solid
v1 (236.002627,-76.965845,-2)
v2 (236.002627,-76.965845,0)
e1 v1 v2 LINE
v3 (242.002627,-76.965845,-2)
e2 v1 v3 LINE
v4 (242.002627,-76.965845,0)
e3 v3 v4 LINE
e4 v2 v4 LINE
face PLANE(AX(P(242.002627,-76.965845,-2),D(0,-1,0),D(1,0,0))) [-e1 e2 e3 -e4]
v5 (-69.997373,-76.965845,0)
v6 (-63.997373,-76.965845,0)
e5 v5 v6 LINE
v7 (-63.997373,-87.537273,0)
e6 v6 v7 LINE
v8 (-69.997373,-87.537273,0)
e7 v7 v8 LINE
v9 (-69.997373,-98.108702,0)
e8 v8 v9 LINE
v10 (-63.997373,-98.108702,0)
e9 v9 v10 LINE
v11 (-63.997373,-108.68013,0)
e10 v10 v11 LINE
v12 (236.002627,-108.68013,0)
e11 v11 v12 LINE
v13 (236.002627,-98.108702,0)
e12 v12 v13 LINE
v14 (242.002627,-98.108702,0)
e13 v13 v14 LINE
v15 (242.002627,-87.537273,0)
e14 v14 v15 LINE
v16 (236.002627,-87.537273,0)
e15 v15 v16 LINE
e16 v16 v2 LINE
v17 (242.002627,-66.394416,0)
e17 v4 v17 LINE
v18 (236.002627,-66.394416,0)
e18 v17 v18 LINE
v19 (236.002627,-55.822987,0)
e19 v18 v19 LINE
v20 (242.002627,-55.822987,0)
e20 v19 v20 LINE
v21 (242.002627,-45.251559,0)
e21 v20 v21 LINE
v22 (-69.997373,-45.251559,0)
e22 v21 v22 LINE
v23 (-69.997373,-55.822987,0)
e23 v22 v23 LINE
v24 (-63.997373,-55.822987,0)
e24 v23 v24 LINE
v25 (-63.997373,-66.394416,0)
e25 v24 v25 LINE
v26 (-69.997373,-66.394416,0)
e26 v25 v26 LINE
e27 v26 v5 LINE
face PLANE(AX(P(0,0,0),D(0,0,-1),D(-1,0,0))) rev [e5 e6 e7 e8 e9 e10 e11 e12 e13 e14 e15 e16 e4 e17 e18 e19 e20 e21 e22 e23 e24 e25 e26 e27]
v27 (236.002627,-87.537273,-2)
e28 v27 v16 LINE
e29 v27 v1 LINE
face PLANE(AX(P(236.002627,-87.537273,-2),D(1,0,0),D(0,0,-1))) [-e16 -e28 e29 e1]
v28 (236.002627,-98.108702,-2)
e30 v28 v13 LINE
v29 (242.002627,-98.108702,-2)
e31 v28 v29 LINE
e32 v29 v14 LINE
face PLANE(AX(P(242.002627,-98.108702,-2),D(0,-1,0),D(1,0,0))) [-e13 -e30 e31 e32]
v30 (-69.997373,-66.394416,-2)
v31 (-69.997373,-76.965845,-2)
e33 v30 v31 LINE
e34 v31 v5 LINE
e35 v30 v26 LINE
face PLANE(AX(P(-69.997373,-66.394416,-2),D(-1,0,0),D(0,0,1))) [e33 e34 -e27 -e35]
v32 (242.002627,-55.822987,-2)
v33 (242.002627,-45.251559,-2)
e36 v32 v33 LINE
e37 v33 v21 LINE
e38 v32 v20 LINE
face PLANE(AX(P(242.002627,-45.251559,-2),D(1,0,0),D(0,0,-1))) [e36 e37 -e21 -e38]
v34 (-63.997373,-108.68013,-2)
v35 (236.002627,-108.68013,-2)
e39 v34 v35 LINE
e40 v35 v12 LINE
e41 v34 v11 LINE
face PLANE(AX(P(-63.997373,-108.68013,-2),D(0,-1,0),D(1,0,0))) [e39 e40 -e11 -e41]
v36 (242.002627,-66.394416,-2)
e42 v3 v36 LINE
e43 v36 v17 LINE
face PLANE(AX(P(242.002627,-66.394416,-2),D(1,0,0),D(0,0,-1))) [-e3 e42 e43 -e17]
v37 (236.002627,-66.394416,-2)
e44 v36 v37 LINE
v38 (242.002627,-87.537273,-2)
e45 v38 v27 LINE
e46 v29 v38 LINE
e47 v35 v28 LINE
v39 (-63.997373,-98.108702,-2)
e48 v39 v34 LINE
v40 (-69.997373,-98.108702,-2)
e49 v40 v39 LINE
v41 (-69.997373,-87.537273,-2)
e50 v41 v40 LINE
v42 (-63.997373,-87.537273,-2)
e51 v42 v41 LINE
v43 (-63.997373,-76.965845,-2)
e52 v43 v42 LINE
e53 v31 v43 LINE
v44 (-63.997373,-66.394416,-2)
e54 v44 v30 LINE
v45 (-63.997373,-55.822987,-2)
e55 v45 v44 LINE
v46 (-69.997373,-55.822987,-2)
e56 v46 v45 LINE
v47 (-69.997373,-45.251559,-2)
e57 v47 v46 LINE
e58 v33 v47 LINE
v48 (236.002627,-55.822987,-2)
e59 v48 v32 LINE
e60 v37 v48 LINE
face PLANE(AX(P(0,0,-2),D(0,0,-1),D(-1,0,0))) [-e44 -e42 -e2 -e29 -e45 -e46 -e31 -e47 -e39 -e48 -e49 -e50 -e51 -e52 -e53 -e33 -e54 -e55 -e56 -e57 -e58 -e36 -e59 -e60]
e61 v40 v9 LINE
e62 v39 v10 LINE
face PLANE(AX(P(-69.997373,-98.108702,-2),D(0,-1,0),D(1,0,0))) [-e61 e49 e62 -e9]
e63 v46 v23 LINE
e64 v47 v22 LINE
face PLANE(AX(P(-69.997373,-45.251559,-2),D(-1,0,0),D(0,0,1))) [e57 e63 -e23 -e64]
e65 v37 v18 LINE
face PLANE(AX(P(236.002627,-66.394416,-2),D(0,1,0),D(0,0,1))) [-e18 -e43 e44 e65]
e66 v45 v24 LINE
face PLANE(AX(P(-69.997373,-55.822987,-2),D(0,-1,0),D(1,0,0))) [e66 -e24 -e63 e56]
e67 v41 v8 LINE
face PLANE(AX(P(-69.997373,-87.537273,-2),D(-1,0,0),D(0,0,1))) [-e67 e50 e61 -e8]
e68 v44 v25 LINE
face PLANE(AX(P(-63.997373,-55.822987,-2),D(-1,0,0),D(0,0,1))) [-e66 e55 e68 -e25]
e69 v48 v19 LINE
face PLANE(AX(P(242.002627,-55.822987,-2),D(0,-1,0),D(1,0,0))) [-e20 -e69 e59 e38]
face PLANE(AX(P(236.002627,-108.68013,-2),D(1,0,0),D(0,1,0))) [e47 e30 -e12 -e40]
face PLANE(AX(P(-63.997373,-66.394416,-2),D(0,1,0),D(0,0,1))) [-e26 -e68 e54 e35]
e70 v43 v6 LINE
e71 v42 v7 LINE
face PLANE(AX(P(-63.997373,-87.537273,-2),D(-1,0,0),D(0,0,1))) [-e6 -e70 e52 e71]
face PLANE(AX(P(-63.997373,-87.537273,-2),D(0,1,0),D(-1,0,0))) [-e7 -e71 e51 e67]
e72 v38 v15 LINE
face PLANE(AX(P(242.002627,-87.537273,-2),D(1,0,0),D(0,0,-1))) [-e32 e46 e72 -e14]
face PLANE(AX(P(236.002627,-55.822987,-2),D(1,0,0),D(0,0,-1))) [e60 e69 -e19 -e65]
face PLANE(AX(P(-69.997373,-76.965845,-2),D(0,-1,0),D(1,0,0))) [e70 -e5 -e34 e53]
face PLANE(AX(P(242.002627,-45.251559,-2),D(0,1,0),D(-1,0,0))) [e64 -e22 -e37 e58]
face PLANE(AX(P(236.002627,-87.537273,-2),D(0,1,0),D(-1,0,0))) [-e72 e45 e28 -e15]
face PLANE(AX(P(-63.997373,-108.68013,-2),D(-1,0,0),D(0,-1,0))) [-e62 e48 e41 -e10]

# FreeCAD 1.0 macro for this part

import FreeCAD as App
import Part
import Sketcher
Q = App.Units.Quantity


def add_polygon(sketch, points):
    """Adds a closed chain of lines whose ends are joined by coincident constraints."""
    first, n = sketch.GeometryCount, len(points)
    for a, b in zip(points, points[1:] + points[:1]):
        sketch.addGeometry(Part.LineSegment(App.Vector(*a, 0), App.Vector(*b, 0)), False)
    for i in range(n):
        sketch.addConstraint(Sketcher.Constraint("Coincident", first + i, 2, first + (i + 1) % n, 1))

doc = App.newDocument("Part")
params = doc.addObject("Spreadsheet::Sheet", "Params")
for row, (alias, value) in enumerate([
    ("sketch1_width", "300 mm"),
    ("sketch1_width2", "6 mm"),
    ("pad1_length", "2 mm"),
], start=1):
    params.set(f"A{row}", alias)
    params.set(f"B{row}", "=" + value)
    params.setAlias(f"B{row}", alias)

body = doc.addObject("PartDesign::Body", "Body")

# Sketch on XY plane
sketch1 = body.newObject("Sketcher::SketchObject", "Sketch")
sketch1.AttachmentSupport = (doc.getObject("XY_Plane"), [""])
sketch1.MapMode = "FlatFace"
add_polygon(sketch1, [(-64, -109), (236, -109), (236, -98), (242, -98), (242, -88), (236, -88), (236, -77), (242, -77), (242, -66), (236, -66), (236, -56), (242, -56), (242, -45), (-70, -45), (-70, -56), (-64, -56), (-64, -66), (-70, -66), (-70, -77), (-64, -77), (-64, -88), (-70, -88), (-70, -98), (-64, -98)])  # lines 0-23
sketch1.addConstraint(Sketcher.Constraint("Horizontal", 0))
sketch1.addConstraint(Sketcher.Constraint("Vertical", 1))
sketch1.addConstraint(Sketcher.Constraint("Horizontal", 2))
sketch1.addConstraint(Sketcher.Constraint("Vertical", 3))
sketch1.addConstraint(Sketcher.Constraint("Horizontal", 4))
sketch1.addConstraint(Sketcher.Constraint("Vertical", 5))
sketch1.addConstraint(Sketcher.Constraint("Horizontal", 6))
sketch1.addConstraint(Sketcher.Constraint("Vertical", 7))
sketch1.addConstraint(Sketcher.Constraint("Horizontal", 8))
sketch1.addConstraint(Sketcher.Constraint("Vertical", 9))
sketch1.addConstraint(Sketcher.Constraint("Horizontal", 10))
sketch1.addConstraint(Sketcher.Constraint("Vertical", 11))
sketch1.addConstraint(Sketcher.Constraint("Horizontal", 12))
sketch1.addConstraint(Sketcher.Constraint("Vertical", 13))
sketch1.addConstraint(Sketcher.Constraint("Horizontal", 14))
sketch1.addConstraint(Sketcher.Constraint("Vertical", 15))
sketch1.addConstraint(Sketcher.Constraint("Horizontal", 16))
sketch1.addConstraint(Sketcher.Constraint("Vertical", 17))
sketch1.addConstraint(Sketcher.Constraint("Horizontal", 18))
sketch1.addConstraint(Sketcher.Constraint("Vertical", 19))
sketch1.addConstraint(Sketcher.Constraint("Horizontal", 20))
sketch1.addConstraint(Sketcher.Constraint("Vertical", 21))
sketch1.addConstraint(Sketcher.Constraint("Horizontal", 22))
sketch1.addConstraint(Sketcher.Constraint("Vertical", 23))
sketch1.addConstraint(Sketcher.Constraint("Horizontal", 10, 2, 13, 2))
sketch1.addConstraint(Sketcher.Constraint("Horizontal", 8, 2, 15, 2))
sketch1.addConstraint(Sketcher.Constraint("Horizontal", 6, 2, 17, 2))
sketch1.addConstraint(Sketcher.Constraint("Horizontal", 4, 2, 19, 2))
sketch1.addConstraint(Sketcher.Constraint("Horizontal", 2, 2, 21, 2))
sketch1.addConstraint(Sketcher.Constraint("Vertical", 1, 2, 4, 2))
sketch1.addConstraint(Sketcher.Constraint("Vertical", 3, 2, 6, 2))
sketch1.addConstraint(Sketcher.Constraint("Vertical", 5, 2, 8, 2))
sketch1.addConstraint(Sketcher.Constraint("Vertical", 7, 2, 10, 2))
sketch1.addConstraint(Sketcher.Constraint("Vertical", 13, 2, 16, 2))
sketch1.addConstraint(Sketcher.Constraint("Vertical", 15, 2, 18, 2))
sketch1.addConstraint(Sketcher.Constraint("Vertical", 17, 2, 20, 2))
sketch1.addConstraint(Sketcher.Constraint("Vertical", 19, 2, 22, 2))
sketch1.addConstraint(Sketcher.Constraint("Equal", 10, 14))
sketch1.addConstraint(Sketcher.Constraint("Equal", 1, 3))
sketch1.addConstraint(Sketcher.Constraint("Equal", 3, 5))
sketch1.addConstraint(Sketcher.Constraint("Equal", 5, 7))
sketch1.addConstraint(Sketcher.Constraint("Equal", 7, 9))
sketch1.addConstraint(Sketcher.Constraint("Equal", 9, 11))
sketch1.addConstraint(Sketcher.Constraint("DistanceX", 0, 1, 0, 2, Q("300 mm")))
sketch1.addConstraint(Sketcher.Constraint("DistanceX", 2, 1, 2, 2, Q("6 mm")))
sketch1.addConstraint(Sketcher.Constraint("DistanceY", 1, 1, 1, 2, Q("10.571429 mm")))
sketch1.addConstraint(Sketcher.Constraint("DistanceY", 1, 2, -1, 1, Q("98.108702 mm")))
sketch1.addConstraint(Sketcher.Constraint("DistanceX", -1, 1, 0, 2, Q("236.002627 mm")))
sketch1.setExpression("Constraints[67]", "Params.sketch1_width")
sketch1.setExpression("Constraints[68]", "Params.sketch1_width2")
pad1 = body.newObject("PartDesign::Pad", "Pad")
pad1.Profile = sketch1
pad1.setExpression("Length", "Params.pad1_length")
pad1.Reversed = True

doc.recompute()
